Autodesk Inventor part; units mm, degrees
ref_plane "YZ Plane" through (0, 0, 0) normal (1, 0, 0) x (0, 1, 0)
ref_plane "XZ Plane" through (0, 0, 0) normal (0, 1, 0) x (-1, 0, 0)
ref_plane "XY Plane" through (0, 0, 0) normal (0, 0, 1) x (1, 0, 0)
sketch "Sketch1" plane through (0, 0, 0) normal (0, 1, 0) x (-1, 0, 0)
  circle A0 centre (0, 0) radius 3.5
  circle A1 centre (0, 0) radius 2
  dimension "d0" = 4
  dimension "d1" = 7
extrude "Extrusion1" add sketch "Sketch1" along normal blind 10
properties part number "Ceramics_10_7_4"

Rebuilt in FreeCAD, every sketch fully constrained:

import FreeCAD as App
import Part
import Sketcher
from FreeCAD import Vector

doc = App.newDocument("Part")
params = doc.addObject("Spreadsheet::Sheet", "Params")
for row, (alias, value) in enumerate([
    ("sketch1_diameter", "7 mm"),
    ("sketch1_diameter2", "4 mm"),
    ("pad1_length", "10 mm"),
], start=1):
    params.set(f"A{row}", alias)
    params.set(f"B{row}", "=" + value)
    params.setAlias(f"B{row}", alias)

body = doc.addObject("PartDesign::Body", "Body")

sketch1 = body.newObject("Sketcher::SketchObject", "Sketch")
sketch1.AttachmentSupport = (doc.getObject("XZ_Plane"), [""])
sketch1.MapMode = "FlatFace"
sketch1.addGeometry([
    Part.Circle(Vector(0, 0, 0), Vector(0, 0, 1), 3.5),
    Part.Circle(Vector(0, 0, 0), Vector(0, 0, 1), 2),
], False)
sketch1.addConstraint([
    Sketcher.Constraint("Coincident", 0, 3, -1, 1),
    Sketcher.Constraint("Coincident", 1, 3, -1, 1),
    Sketcher.Constraint("Diameter", 0, 7.0),
    Sketcher.Constraint("Diameter", 1, 4.0),
])
sketch1.setExpression("Constraints[2]", "Params.sketch1_diameter")
sketch1.setExpression("Constraints[3]", "Params.sketch1_diameter2")
pad1 = body.newObject("PartDesign::Pad", "Pad")
pad1.Profile = sketch1
pad1.setExpression("Length", "Params.pad1_length")
pad1.Reversed = True

doc.recompute()
